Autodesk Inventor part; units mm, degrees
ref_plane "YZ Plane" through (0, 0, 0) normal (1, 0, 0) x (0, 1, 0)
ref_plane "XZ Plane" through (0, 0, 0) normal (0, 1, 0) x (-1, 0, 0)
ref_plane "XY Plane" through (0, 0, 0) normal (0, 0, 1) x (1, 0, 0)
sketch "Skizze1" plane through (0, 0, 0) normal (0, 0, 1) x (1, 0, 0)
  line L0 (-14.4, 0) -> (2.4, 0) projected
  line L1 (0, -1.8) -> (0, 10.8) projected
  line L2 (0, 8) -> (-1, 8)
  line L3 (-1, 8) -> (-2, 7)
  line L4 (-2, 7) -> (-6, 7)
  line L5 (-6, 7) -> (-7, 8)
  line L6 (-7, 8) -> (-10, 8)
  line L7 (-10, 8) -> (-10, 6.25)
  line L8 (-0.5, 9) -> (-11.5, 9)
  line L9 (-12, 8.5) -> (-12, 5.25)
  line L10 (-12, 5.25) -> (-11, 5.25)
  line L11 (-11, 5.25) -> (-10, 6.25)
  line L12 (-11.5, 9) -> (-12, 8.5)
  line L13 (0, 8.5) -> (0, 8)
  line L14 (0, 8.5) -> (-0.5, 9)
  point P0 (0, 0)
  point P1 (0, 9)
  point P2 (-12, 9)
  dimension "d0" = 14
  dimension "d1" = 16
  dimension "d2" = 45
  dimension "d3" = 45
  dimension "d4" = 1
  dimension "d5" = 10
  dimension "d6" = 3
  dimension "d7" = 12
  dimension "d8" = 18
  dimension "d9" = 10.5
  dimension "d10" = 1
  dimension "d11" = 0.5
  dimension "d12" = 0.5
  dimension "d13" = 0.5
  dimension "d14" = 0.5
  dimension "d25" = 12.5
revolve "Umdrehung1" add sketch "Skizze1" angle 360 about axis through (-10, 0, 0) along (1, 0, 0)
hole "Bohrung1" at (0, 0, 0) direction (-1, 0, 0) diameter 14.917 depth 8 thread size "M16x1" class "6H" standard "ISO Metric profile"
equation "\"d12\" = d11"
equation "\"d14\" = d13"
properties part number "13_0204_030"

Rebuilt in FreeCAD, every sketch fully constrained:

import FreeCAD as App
import Part
import Sketcher

V = App.Vector
Q = App.Units.Quantity


def add_polygon(sketch, points):
    """Adds a closed chain of lines whose ends are joined by coincident constraints."""
    first, n = sketch.GeometryCount, len(points)
    for a, b in zip(points, points[1:] + points[:1]):
        sketch.addGeometry(Part.LineSegment(App.Vector(*a, 0), App.Vector(*b, 0)), False)
    for i in range(n):
        sketch.addConstraint(Sketcher.Constraint("Coincident", first + i, 2, first + (i + 1) % n, 1))

doc = App.newDocument("Part")
body = doc.addObject("PartDesign::Body", "Body")

sketch1 = body.newObject("Sketcher::SketchObject", "Sketch")
sketch1.AttachmentSupport = (doc.getObject("XY_Plane"), [""])
sketch1.MapMode = "FlatFace"
add_polygon(sketch1, [(-1, 8), (0, 8), (0, 8.5), (-0.5, 9), (-11.5, 9), (-12, 8.5), (-12, 5.2), (-11, 5.2), (-10, 6.2), (-10, 8), (-7, 8), (-6, 7), (-2, 7)])
sketch1.addConstraint(Sketcher.Constraint("Horizontal", 0))
sketch1.addConstraint(Sketcher.Constraint("Vertical", 1))
sketch1.addConstraint(Sketcher.Constraint("Horizontal", 3))
sketch1.addConstraint(Sketcher.Constraint("Vertical", 5))
sketch1.addConstraint(Sketcher.Constraint("Horizontal", 6))
sketch1.addConstraint(Sketcher.Constraint("Vertical", 8))
sketch1.addConstraint(Sketcher.Constraint("Horizontal", 9))
sketch1.addConstraint(Sketcher.Constraint("Horizontal", 11))
sketch1.addConstraint(Sketcher.Constraint("PointOnObject", 0, 2, -2))
sketch1.addConstraint(Sketcher.Constraint("Perpendicular", 2, 4))
sketch1.addConstraint(Sketcher.Constraint("Parallel", 4, 7))
sketch1.addConstraint(Sketcher.Constraint("Perpendicular", 7, 10))
sketch1.addConstraint(Sketcher.Constraint("Perpendicular", 10, 12))
sketch1.addConstraint(Sketcher.Constraint("Horizontal", 1, 2, 4, 2))
sketch1.addConstraint(Sketcher.Constraint("Horizontal", 0, 2, 8, 2))
sketch1.addConstraint(Sketcher.Constraint("Equal", 0, 6))
sketch1.addConstraint(Sketcher.Constraint("Equal", 2, 4))
sketch1.addConstraint(Sketcher.Constraint("Equal", 7, 10))
sketch1.addConstraint(Sketcher.Constraint("DistanceX", 0, 1, 0, 2, Q("1 mm")))
sketch1.addConstraint(Sketcher.Constraint("DistanceX", 9, 1, 9, 2, Q("3 mm")))
sketch1.addConstraint(Sketcher.Constraint("DistanceY", 1, 1, 1, 2, Q("0.5 mm")))
sketch1.addConstraint(Sketcher.Constraint("DistanceX", 4, 2, -1, 1, Q("12 mm")))
sketch1.addConstraint(Sketcher.Constraint("DistanceX", 7, 2, -1, 1, Q("10 mm")))
sketch1.addConstraint(Sketcher.Constraint("DistanceY", 0, 2, 2, 2, Q("1 mm")))
sketch1.addConstraint(Sketcher.Constraint("DistanceY", -1, 1, 0, 2, Q("8 mm")))
sketch1.addConstraint(Sketcher.Constraint("DistanceY", 5, 2, 5, 1, Q("3.25 mm")))
revolution = body.newObject("PartDesign::Revolution", "Revolution")
revolution.Profile = sketch1
revolution.ReferenceAxis = (sketch1, ["H_Axis"])
revolution.Angle = 360

sketch2 = body.newObject("Sketcher::SketchObject", "Sketch001")
sketch2.AttachmentSupport = (doc.getObject("YZ_Plane"), [""])
sketch2.MapMode = "FlatFace"
sketch2.addGeometry(Part.Circle(V(0, 0, 0), V(0, 0, 1), 7), False)
sketch2.addConstraint(Sketcher.Constraint("Coincident", 0, 3, -1, 1))
sketch2.addConstraint(Sketcher.Constraint("Diameter", 0, Q("14.917 mm")))
doc.recompute()
hole = body.newObject("PartDesign::Hole", "Hole")
hole.Profile = sketch2
hole.ThreadType = "None"
hole.Diameter = 14.917
hole.DepthType = "Dimension"
hole.Depth = 8
hole.DrillPoint = "Flat"

doc.recompute()
